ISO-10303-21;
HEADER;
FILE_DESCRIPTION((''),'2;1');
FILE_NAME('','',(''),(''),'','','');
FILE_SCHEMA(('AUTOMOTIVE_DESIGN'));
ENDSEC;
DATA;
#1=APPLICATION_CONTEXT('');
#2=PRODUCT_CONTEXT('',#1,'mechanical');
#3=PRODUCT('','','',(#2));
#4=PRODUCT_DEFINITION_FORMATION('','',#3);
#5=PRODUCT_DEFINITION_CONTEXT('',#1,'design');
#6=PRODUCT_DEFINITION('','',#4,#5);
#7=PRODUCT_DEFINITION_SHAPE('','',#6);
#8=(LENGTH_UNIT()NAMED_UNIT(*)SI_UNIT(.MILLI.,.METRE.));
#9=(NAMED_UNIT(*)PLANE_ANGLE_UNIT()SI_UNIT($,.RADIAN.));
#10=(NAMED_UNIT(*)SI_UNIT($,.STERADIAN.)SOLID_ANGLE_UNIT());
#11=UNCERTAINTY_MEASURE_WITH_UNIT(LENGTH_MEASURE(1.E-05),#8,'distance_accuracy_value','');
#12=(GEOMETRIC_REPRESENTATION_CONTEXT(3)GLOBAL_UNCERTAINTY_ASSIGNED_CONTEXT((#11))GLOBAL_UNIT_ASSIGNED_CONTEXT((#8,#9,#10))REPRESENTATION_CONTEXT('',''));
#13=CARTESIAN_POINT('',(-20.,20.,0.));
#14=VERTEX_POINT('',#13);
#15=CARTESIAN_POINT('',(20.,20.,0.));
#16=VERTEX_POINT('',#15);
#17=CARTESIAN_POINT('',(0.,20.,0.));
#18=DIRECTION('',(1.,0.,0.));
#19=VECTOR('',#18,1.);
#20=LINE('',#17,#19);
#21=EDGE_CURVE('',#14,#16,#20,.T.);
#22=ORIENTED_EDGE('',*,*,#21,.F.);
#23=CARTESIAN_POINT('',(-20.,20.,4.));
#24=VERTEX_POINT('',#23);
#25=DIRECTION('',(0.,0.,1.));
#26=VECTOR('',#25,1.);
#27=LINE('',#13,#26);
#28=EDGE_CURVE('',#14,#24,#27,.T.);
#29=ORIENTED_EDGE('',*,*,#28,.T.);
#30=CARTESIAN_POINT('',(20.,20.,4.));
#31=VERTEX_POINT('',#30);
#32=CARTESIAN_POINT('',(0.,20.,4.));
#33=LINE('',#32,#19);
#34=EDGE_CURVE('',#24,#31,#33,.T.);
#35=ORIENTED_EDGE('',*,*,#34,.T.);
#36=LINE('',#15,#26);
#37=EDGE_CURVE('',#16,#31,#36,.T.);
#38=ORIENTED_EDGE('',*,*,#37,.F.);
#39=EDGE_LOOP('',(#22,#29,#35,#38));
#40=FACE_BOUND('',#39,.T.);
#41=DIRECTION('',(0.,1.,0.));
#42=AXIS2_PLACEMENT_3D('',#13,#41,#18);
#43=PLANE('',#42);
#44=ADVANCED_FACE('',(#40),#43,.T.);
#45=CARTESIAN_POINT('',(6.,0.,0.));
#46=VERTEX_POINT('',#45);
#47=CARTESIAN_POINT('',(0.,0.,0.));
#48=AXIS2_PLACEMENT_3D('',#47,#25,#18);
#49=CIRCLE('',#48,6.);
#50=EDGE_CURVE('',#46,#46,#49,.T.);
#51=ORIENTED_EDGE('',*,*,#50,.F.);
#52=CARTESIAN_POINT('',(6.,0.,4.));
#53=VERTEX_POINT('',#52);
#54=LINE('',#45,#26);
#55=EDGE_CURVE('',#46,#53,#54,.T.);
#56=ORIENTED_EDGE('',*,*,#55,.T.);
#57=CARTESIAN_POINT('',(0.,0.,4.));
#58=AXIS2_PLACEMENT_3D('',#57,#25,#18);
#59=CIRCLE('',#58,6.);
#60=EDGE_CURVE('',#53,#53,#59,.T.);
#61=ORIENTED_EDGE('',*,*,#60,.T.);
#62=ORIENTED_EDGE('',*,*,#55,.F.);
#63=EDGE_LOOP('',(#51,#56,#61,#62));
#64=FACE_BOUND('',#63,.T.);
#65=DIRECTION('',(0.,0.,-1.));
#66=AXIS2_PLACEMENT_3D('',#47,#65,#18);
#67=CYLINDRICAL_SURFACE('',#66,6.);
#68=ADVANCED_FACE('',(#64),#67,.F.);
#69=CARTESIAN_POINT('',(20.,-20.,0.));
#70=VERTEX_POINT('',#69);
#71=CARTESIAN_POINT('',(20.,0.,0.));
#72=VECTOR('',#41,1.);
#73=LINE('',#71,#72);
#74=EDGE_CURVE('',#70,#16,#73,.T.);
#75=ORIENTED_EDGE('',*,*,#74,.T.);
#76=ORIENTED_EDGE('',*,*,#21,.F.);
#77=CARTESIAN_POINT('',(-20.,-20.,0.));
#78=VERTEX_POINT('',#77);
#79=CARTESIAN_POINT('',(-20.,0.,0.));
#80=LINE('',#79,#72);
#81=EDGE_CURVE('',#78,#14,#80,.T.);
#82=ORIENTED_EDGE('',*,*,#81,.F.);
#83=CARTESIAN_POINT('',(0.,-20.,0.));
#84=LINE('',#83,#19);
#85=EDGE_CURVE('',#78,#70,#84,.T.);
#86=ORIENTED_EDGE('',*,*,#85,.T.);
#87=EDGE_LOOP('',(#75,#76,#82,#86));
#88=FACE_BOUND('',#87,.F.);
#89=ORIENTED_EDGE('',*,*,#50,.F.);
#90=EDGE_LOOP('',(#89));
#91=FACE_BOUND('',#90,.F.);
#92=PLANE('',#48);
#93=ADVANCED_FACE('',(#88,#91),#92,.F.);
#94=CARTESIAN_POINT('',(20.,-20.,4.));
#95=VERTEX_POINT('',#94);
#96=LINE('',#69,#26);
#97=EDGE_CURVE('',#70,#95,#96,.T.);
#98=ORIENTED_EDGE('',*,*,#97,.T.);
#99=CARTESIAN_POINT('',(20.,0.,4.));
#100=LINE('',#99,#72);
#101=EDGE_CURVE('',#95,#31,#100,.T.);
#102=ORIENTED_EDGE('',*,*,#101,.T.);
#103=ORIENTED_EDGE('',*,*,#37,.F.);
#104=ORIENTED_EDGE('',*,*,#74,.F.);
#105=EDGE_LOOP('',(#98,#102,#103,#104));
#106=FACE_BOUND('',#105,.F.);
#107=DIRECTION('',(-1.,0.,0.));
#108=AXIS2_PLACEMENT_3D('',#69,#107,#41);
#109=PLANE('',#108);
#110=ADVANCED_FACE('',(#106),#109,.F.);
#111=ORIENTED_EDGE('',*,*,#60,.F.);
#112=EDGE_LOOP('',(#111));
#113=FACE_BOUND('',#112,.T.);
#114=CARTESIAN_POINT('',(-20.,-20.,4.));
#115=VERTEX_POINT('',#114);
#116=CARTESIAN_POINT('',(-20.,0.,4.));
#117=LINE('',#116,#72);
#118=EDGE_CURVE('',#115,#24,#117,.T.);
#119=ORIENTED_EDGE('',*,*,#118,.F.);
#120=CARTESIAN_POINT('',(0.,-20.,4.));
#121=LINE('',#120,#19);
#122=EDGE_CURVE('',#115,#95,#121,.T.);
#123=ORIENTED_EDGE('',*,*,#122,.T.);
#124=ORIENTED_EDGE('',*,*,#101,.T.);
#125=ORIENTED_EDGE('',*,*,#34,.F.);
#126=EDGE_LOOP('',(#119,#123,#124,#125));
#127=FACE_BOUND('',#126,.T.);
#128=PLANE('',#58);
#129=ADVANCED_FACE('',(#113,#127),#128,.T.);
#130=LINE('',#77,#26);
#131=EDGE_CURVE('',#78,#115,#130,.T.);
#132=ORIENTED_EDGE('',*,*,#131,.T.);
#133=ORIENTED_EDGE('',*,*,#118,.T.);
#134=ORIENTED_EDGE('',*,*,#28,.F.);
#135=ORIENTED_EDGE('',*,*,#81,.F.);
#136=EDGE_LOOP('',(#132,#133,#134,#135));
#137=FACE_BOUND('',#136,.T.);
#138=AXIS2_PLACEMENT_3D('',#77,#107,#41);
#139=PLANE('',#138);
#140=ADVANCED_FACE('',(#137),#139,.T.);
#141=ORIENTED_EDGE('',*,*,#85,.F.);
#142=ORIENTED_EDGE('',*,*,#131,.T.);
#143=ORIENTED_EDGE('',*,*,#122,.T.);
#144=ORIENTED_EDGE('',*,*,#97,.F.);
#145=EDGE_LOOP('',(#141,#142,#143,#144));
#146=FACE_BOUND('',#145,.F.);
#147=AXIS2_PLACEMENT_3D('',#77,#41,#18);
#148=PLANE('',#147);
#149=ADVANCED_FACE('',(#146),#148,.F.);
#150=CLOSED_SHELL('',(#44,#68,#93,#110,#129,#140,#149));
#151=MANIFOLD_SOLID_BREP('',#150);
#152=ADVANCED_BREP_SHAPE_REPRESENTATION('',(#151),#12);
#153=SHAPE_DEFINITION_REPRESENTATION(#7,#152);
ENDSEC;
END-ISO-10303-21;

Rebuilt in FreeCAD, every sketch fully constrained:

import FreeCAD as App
import Part
import Sketcher

doc = App.newDocument("Part")
body = doc.addObject("PartDesign::Body", "Body")

# Sketch on XY plane
sketch1 = doc.addObject("Sketcher::SketchObject", "Sketch")
body.addObject(sketch1)
sketch1.AttachmentSupport = (doc.XY_Plane, [""])
sketch1.MapMode = "FlatFace"
sketch1.addGeometry([
    Part.LineSegment(App.Vector(-20, 20, 0), App.Vector(-20, -20, 0)),  # 0
    Part.LineSegment(App.Vector(-20, -20, 0), App.Vector(20, -20, 0)),  # 1
    Part.LineSegment(App.Vector(20, -20, 0), App.Vector(20, 20, 0)),  # 2
    Part.LineSegment(App.Vector(20, 20, 0), App.Vector(-20, 20, 0)),  # 3
    Part.Circle(App.Vector(0, 0, 0), App.Vector(0, 0, 1), 6),  # 4
], False)
sketch1.addConstraint([
    Sketcher.Constraint("Coincident", 0, 2, 1, 1),
    Sketcher.Constraint("Coincident", 1, 2, 2, 1),
    Sketcher.Constraint("Coincident", 2, 2, 3, 1),
    Sketcher.Constraint("Coincident", 3, 2, 0, 1),
    Sketcher.Constraint("Vertical", 0),
    Sketcher.Constraint("Horizontal", 1),
    Sketcher.Constraint("Vertical", 2),
    Sketcher.Constraint("Horizontal", 3),
    Sketcher.Constraint("Coincident", 4, 3, -1, 1),
    Sketcher.Constraint("Symmetric", 0, 2, 2, 2, -1, 1),
    Sketcher.Constraint("Equal", 3, 0),
    Sketcher.Constraint("Diameter", 4, 12.0),
    Sketcher.Constraint("DistanceX", 1, 1, 1, 2, 40.0),
])
pad1 = doc.addObject("PartDesign::Pad", "Pad")
body.addObject(pad1)
pad1.Profile = sketch1
pad1.Length = 4

doc.recompute()
